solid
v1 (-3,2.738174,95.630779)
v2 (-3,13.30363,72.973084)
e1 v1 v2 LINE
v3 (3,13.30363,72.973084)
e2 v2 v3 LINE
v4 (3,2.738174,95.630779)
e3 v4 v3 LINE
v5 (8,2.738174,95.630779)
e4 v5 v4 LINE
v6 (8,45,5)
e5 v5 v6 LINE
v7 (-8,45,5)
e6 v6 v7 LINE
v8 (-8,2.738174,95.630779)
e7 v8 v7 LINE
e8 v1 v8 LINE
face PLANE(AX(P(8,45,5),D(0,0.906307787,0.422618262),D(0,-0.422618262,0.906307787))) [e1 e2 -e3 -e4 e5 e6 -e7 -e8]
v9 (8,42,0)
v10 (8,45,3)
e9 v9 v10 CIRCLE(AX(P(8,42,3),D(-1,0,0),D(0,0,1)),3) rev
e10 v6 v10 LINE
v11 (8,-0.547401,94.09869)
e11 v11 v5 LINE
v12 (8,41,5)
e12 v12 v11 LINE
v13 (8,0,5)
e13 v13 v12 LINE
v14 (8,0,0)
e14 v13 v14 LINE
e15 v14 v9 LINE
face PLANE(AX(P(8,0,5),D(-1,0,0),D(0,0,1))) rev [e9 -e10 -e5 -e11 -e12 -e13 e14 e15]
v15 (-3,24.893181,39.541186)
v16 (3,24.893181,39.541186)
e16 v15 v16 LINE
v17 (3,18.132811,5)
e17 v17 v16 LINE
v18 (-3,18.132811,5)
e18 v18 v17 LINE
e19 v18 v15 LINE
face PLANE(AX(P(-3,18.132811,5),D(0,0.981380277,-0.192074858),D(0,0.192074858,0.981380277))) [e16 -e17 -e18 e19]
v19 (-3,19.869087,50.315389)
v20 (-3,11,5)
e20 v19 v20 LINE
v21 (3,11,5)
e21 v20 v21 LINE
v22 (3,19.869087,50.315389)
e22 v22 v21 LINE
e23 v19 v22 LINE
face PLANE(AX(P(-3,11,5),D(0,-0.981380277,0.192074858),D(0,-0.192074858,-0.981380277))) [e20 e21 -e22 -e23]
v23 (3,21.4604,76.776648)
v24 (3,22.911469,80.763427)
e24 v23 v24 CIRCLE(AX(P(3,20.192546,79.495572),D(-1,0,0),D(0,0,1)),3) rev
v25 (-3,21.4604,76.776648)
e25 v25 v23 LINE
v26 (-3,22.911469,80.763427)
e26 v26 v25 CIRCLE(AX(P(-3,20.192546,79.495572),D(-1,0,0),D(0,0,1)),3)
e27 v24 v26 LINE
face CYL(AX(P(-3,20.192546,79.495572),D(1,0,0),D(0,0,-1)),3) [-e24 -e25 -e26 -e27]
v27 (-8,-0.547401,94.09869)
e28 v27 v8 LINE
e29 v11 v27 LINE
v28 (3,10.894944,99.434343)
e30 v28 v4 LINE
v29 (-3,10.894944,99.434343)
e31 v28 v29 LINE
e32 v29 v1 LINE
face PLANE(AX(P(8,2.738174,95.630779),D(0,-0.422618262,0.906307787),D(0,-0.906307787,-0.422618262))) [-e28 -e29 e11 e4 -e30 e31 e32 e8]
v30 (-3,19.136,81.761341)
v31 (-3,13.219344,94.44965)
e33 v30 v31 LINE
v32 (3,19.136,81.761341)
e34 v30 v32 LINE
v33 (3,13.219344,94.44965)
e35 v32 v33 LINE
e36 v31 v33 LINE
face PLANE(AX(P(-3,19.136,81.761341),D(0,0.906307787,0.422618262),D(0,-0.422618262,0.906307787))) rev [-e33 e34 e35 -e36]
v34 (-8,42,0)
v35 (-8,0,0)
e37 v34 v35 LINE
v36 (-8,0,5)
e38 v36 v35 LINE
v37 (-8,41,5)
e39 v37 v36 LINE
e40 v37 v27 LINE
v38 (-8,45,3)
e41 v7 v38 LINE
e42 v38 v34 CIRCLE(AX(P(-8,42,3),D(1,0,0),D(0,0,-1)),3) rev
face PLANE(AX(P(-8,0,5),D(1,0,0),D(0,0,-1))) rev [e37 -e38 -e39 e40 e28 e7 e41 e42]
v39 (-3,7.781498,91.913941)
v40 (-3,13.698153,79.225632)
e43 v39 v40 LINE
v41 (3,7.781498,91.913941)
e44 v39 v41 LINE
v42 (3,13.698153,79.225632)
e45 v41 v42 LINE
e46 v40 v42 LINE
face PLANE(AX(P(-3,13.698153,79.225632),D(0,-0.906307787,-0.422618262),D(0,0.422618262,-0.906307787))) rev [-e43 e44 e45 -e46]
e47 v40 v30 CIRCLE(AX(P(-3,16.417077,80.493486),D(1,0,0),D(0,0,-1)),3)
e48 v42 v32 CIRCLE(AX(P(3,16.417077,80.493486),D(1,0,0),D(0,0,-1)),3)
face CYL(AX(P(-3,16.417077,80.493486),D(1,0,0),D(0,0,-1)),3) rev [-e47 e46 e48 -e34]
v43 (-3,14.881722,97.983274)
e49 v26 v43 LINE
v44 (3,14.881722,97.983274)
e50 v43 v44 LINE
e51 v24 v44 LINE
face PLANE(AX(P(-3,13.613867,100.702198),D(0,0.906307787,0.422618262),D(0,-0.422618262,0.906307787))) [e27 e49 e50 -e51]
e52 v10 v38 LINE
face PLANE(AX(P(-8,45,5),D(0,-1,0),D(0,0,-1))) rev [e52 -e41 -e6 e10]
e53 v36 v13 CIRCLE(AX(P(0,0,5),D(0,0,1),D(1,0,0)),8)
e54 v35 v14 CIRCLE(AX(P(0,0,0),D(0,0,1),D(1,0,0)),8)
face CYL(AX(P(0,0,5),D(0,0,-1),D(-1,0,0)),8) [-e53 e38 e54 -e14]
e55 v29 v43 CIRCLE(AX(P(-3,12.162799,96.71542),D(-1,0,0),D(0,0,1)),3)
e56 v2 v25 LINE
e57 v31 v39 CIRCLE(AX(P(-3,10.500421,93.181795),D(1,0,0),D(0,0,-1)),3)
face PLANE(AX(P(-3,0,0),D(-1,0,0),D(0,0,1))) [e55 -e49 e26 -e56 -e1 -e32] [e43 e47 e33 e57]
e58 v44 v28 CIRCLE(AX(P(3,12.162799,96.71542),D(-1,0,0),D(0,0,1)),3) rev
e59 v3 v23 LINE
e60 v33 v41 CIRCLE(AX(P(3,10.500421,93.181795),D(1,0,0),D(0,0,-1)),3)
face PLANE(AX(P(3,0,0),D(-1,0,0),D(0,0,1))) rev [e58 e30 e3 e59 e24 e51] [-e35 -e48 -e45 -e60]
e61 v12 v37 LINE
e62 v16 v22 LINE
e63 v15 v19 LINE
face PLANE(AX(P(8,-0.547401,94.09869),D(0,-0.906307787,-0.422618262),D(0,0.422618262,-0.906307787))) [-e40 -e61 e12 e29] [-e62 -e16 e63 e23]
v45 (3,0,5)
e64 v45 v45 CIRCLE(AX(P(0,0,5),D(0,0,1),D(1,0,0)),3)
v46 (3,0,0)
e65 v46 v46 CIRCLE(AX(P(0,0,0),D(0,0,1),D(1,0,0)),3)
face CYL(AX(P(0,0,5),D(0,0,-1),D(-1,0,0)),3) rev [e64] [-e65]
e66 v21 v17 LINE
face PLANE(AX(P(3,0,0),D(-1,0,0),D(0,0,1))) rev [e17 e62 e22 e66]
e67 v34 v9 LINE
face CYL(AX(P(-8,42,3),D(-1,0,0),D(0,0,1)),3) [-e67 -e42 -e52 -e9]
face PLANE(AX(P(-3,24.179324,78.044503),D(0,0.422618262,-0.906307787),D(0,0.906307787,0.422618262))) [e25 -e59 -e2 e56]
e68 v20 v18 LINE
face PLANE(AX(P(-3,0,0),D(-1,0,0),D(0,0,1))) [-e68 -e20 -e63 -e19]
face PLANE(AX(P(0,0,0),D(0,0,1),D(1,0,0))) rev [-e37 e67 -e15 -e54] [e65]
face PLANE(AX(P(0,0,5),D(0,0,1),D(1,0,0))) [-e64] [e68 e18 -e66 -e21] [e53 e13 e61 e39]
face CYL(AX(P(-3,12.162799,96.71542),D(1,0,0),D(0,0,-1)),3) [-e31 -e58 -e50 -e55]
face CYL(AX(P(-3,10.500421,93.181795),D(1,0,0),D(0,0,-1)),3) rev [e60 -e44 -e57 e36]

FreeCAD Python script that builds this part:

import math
import FreeCAD as App
import Part
import Sketcher
from FreeCAD import Vector
Q = App.Units.Quantity


def edges_at(feature, points):
    """Names of the edges that pass closest to the given points."""
    edges = feature.Shape.Edges
    near = lambda p: min(range(len(edges)), key=lambda i: edges[i].distToShape(Part.Vertex(*p))[0])
    return sorted({f"Edge{near(p) + 1}" for p in points})

doc = App.newDocument("Part")
params = doc.addObject("Spreadsheet::Sheet", "Params")
for row, (alias, value) in enumerate([
    ("sketch1_diameter", "6 mm"),
    ("sketch1_radius", "8 mm"),
    ("sketch1_height", "45 mm"),
    ("pad1_length", "5 mm"),
    ("sketch2_width", "4 mm"),
    ("sketch2_length", "100 mm"),
    ("pad2_length", "16 mm"),
    ("pad3_length", "3 mm"),
    ("pad3_length2", "3 mm"),
    ("sketch4_radius", "3 mm"),
    ("sketch4_length", "12 mm"),
    ("sketch4_length2", "25 mm"),
    ("sketch4_length3", "14 mm"),
    ("pad4_length", "3 mm"),
    ("pad4_length2", "3 mm"),
    ("fillet_radius", "3 mm"),
], start=1):
    params.set(f"A{row}", alias)
    params.set(f"B{row}", "=" + value)
    params.setAlias(f"B{row}", alias)

body = doc.addObject("PartDesign::Body", "Body")

sketch1 = body.newObject("Sketcher::SketchObject", "Sketch")
sketch1.AttachmentSupport = (doc.getObject("XY_Plane"), [""])
sketch1.MapMode = "FlatFace"
sketch1.addGeometry(Part.LineSegment(Vector(-8, 45, 0), Vector(-8, 0, 0)), False)
sketch1.addGeometry(Part.ArcOfCircle(Part.Circle(Vector(0, 0, 0), Vector(0, 0, 1), 8), math.radians(180), math.radians(360)), False)
sketch1.addGeometry(Part.LineSegment(Vector(8, 0, 0), Vector(8, 45, 0)), False)
sketch1.addGeometry(Part.LineSegment(Vector(8, 45, 0), Vector(-8, 45, 0)), False)
sketch1.addGeometry(Part.Circle(Vector(0, 0, 0), Vector(0, 0, 1), 3), False)
sketch1.addConstraint(Sketcher.Constraint("Tangent", 0, 2, 1, 1))
sketch1.addConstraint(Sketcher.Constraint("Tangent", 1, 2, 2, 1))
sketch1.addConstraint(Sketcher.Constraint("Coincident", 2, 2, 3, 1))
sketch1.addConstraint(Sketcher.Constraint("Coincident", 3, 2, 0, 1))
sketch1.addConstraint(Sketcher.Constraint("Vertical", 0))
sketch1.addConstraint(Sketcher.Constraint("Vertical", 2))
sketch1.addConstraint(Sketcher.Constraint("Horizontal", 3))
sketch1.addConstraint(Sketcher.Constraint("Coincident", 1, 3, -1, 1))
sketch1.addConstraint(Sketcher.Constraint("Coincident", 4, 3, -1, 1))
sketch1.addConstraint(Sketcher.Constraint("Diameter", 4, 6.0))
sketch1.addConstraint(Sketcher.Constraint("Radius", 1, 8.0))
sketch1.addConstraint(Sketcher.Constraint("DistanceY", 0, 2, 0, 1, 45.0))
sketch1.setExpression("Constraints[9]", "Params.sketch1_diameter")
sketch1.setExpression("Constraints[10]", "Params.sketch1_radius")
sketch1.setExpression("Constraints[11]", "Params.sketch1_height")
pad1 = body.newObject("PartDesign::Pad", "Pad")
pad1.Profile = sketch1
pad1.setExpression("Length", "Params.pad1_length")

sketch2 = body.newObject("Sketcher::SketchObject", "Sketch001")
sketch2.AttachmentSupport = (doc.getObject("YZ_Plane"), [""])
sketch2.MapMode = "FlatFace"
sketch2.AttachmentOffset = App.Placement(Vector(0, 0, -8), App.Rotation())
sketch2.addGeometry(Part.LineSegment(Vector(2.7, 95.6, 0), Vector(45, 5, 0)), False)
sketch2.addGeometry(Part.LineSegment(Vector(45, 5, 0), Vector(41, 5, 0)), False)
sketch2.addGeometry(Part.LineSegment(Vector(41, 5, 0), Vector(-0.5, 94.1, 0)), False)
sketch2.addGeometry(Part.LineSegment(Vector(-0.5, 94.1, 0), Vector(2.7, 95.6, 0)), False)
sketch2.addConstraint(Sketcher.Constraint("Coincident", 0, 2, 1, 1))
sketch2.addConstraint(Sketcher.Constraint("Coincident", 1, 2, 2, 1))
sketch2.addConstraint(Sketcher.Constraint("Coincident", 2, 2, 3, 1))
sketch2.addConstraint(Sketcher.Constraint("Coincident", 3, 2, 0, 1))
sketch2.addConstraint(Sketcher.Constraint("Horizontal", 1))
sketch2.addConstraint(Sketcher.Constraint("Parallel", 0, 2))
sketch2.addConstraint(Sketcher.Constraint("Perpendicular", 2, 3))
sketch2.addConstraint(Sketcher.Constraint("DistanceX", 1, 2, 1, 1, 4.0))
sketch2.addConstraint(Sketcher.Constraint("Angle", 0, Q("-65 deg")))
sketch2.addConstraint(Sketcher.Constraint("Distance", 0, 100.0))
sketch2.addConstraint(Sketcher.Constraint("DistanceX", -1, 1, 0, 2, 45.0))
sketch2.addConstraint(Sketcher.Constraint("DistanceY", -1, 1, 0, 2, 5.0))
sketch2.setExpression("Constraints[7]", "Params.sketch2_width")
sketch2.setExpression("Constraints[9]", "Params.sketch2_length")
pad2 = body.newObject("PartDesign::Pad", "Pad001")
pad2.Profile = sketch2
pad2.setExpression("Length", "Params.pad2_length")

sketch3 = body.newObject("Sketcher::SketchObject", "Sketch002")
sketch3.AttachmentSupport = (doc.getObject("YZ_Plane"), [""])
sketch3.MapMode = "FlatFace"
sketch3.addGeometry(Part.LineSegment(Vector(20, 50, 0), Vector(11, 5, 0)), False)
sketch3.addGeometry(Part.LineSegment(Vector(11, 5, 0), Vector(18, 5, 0)), False)
sketch3.addGeometry(Part.LineSegment(Vector(18, 5, 0), Vector(25, 40, 0)), False)
sketch3.addGeometry(Part.LineSegment(Vector(25, 40, 0), Vector(20, 50, 0)), False)
sketch3.addConstraint(Sketcher.Constraint("Coincident", 0, 2, 1, 1))
sketch3.addConstraint(Sketcher.Constraint("Coincident", 1, 2, 2, 1))
sketch3.addConstraint(Sketcher.Constraint("Coincident", 2, 2, 3, 1))
sketch3.addConstraint(Sketcher.Constraint("Coincident", 3, 2, 0, 1))
sketch3.addConstraint(Sketcher.Constraint("Horizontal", 1))
sketch3.addConstraint(Sketcher.Constraint("Parallel", 0, 2))
sketch3.addConstraint(Sketcher.Constraint("Angle", 3, Q("115 deg")))
sketch3.addConstraint(Sketcher.Constraint("DistanceX", -1, 1, 0, 2, 11.0))
sketch3.addConstraint(Sketcher.Constraint("DistanceY", -1, 1, 0, 2, 5.0))
sketch3.addConstraint(Sketcher.Constraint("DistanceX", 1, 1, 1, 2, 7.132811))
sketch3.addConstraint(Sketcher.Constraint("Distance", 3, 11.888018))
sketch3.addConstraint(Sketcher.Constraint("DistanceX", -1, 1, 2, 2, 24.893181))
pad3 = body.newObject("PartDesign::Pad", "Pad002")
pad3.Profile = sketch3
pad3.Type = "TwoLengths"
pad3.setExpression("Length", "Params.pad3_length")
pad3.setExpression("Length2", "Params.pad3_length2")

sketch4 = body.newObject("Sketcher::SketchObject", "Sketch003")
sketch4.AttachmentSupport = (doc.getObject("YZ_Plane"), [""])
sketch4.MapMode = "FlatFace"
sketch4.addGeometry(Part.LineSegment(Vector(13.6, 100.7, 0), Vector(2.7, 95.6, 0)), False)
sketch4.addGeometry(Part.LineSegment(Vector(2.7, 95.6, 0), Vector(13.3, 73, 0)), False)
sketch4.addGeometry(Part.LineSegment(Vector(13.3, 73, 0), Vector(24.2, 78, 0)), False)
sketch4.addGeometry(Part.LineSegment(Vector(24.2, 78, 0), Vector(13.6, 100.7, 0)), False)
sketch4.addGeometry(Part.LineSegment(Vector(13.7, 79.2, 0), Vector(7.8, 91.9, 0)), False)
sketch4.addGeometry(Part.ArcOfCircle(Part.Circle(Vector(10.5, 93.2, 0), Vector(0, 0, 1), 3), math.radians(25), math.radians(205)), False)
sketch4.addGeometry(Part.LineSegment(Vector(13.2, 94.4, 0), Vector(19.1, 81.8, 0)), False)
sketch4.addGeometry(Part.ArcOfCircle(Part.Circle(Vector(16.4, 80.5, 0), Vector(0, 0, 1), 3), math.radians(-155), math.radians(25)), False)
sketch4.addConstraint(Sketcher.Constraint("Coincident", 0, 2, 1, 1))
sketch4.addConstraint(Sketcher.Constraint("Coincident", 1, 2, 2, 1))
sketch4.addConstraint(Sketcher.Constraint("Coincident", 2, 2, 3, 1))
sketch4.addConstraint(Sketcher.Constraint("Coincident", 3, 2, 0, 1))
sketch4.addConstraint(Sketcher.Constraint("Tangent", 4, 2, 5, 2))
sketch4.addConstraint(Sketcher.Constraint("Tangent", 5, 1, 6, 1))
sketch4.addConstraint(Sketcher.Constraint("Tangent", 6, 2, 7, 2))
sketch4.addConstraint(Sketcher.Constraint("Tangent", 7, 1, 4, 1))
sketch4.addConstraint(Sketcher.Constraint("Equal", 5, 7))
sketch4.addConstraint(Sketcher.Constraint("Perpendicular", 0, 1))
sketch4.addConstraint(Sketcher.Constraint("Perpendicular", 1, 2))
sketch4.addConstraint(Sketcher.Constraint("Perpendicular", 2, 3))
sketch4.addConstraint(Sketcher.Constraint("Parallel", 3, 4))
sketch4.addConstraint(Sketcher.Constraint("Radius", 5, 3.0))
sketch4.addConstraint(Sketcher.Constraint("Angle", 0, Q("-155 deg")))
sketch4.addConstraint(Sketcher.Constraint("Distance", 0, 12.0))
sketch4.addConstraint(Sketcher.Constraint("Distance", 1, 25.0))
sketch4.addConstraint(Sketcher.Constraint("Distance", 4, 14.0))
sketch4.addConstraint(Sketcher.Constraint("DistanceX", -1, 1, 6, 2, 19.136))
sketch4.addConstraint(Sketcher.Constraint("DistanceY", -1, 1, 0, 2, 95.630779))
sketch4.addConstraint(Sketcher.Constraint("DistanceX", -1, 1, 1, 2, 13.30363))
sketch4.addConstraint(Sketcher.Constraint("DistanceY", -1, 1, 4, 2, 91.913941))
sketch4.setExpression("Constraints[13]", "Params.sketch4_radius")
sketch4.setExpression("Constraints[15]", "Params.sketch4_length")
sketch4.setExpression("Constraints[16]", "Params.sketch4_length2")
sketch4.setExpression("Constraints[17]", "Params.sketch4_length3")
pad4 = body.newObject("PartDesign::Pad", "Pad003")
pad4.Profile = sketch4
pad4.Type = "TwoLengths"
pad4.setExpression("Length", "Params.pad4_length")
pad4.setExpression("Length2", "Params.pad4_length2")
doc.recompute()

fillet = body.newObject("PartDesign::Fillet", "Fillet")
fillet.Base = (pad4, edges_at(pad4, [(0, 13.614, 100.702), (0, 24.179, 78.045), (0, 45, 0)]))
fillet.setExpression("Radius", "Params.fillet_radius")

doc.recompute()
